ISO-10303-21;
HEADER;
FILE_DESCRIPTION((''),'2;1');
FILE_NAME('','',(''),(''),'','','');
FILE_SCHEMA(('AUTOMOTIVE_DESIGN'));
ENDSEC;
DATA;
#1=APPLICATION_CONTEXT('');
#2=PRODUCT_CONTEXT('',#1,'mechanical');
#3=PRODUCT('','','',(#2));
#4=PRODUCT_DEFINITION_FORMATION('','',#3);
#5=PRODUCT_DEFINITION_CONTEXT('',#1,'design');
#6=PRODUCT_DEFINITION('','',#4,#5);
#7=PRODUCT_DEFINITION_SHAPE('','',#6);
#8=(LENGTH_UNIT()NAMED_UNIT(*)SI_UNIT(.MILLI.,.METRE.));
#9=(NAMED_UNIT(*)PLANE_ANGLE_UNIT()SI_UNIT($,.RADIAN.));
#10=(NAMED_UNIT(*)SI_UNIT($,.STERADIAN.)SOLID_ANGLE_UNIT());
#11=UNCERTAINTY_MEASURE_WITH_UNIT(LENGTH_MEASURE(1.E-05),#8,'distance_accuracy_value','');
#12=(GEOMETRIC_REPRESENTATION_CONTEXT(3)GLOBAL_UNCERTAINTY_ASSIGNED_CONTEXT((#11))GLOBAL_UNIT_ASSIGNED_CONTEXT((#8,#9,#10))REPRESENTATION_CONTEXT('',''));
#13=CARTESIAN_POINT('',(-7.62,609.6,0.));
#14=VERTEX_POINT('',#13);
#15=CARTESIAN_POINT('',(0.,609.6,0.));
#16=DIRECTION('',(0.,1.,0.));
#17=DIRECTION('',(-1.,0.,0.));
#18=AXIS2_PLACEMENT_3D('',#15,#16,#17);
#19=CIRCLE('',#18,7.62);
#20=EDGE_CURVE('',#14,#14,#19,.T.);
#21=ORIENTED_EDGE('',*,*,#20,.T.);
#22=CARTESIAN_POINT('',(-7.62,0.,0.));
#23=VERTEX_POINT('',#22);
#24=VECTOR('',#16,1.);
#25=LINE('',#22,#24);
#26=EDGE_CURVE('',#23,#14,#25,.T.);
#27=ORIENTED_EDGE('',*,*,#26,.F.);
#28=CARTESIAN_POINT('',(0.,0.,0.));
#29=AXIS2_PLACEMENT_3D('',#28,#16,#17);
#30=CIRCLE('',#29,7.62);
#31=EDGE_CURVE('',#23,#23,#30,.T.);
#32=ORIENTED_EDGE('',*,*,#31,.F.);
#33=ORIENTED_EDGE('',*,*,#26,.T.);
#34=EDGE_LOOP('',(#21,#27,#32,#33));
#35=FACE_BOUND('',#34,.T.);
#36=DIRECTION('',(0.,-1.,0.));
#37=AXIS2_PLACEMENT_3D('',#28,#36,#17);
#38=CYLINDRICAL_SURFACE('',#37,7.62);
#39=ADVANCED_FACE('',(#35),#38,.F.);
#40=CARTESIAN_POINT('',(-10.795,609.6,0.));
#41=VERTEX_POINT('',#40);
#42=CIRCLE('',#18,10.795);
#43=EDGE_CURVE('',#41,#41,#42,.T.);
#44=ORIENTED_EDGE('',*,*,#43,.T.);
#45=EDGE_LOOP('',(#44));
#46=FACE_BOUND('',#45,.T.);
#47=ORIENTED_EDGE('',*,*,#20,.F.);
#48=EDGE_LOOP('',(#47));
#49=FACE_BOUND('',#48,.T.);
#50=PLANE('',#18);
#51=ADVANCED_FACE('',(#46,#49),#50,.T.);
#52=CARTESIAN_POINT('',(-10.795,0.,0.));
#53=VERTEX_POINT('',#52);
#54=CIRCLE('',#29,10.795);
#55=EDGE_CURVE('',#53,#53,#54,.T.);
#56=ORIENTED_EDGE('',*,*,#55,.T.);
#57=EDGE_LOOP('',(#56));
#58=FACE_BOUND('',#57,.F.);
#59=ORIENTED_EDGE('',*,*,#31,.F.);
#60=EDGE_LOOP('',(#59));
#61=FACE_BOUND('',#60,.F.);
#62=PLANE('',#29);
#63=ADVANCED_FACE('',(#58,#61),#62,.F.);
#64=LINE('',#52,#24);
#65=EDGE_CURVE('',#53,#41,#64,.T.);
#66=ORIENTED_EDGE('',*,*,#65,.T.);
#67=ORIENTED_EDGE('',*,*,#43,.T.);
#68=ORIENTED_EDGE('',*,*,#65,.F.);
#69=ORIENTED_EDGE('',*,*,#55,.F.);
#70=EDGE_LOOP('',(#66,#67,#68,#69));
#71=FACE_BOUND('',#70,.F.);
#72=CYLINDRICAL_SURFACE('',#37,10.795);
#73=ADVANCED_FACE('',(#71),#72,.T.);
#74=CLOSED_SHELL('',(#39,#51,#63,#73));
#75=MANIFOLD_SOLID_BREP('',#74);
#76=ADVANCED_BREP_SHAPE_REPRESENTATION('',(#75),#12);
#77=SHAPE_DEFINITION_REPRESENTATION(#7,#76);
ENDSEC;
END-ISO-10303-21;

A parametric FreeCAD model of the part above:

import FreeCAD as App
import Part
import Sketcher
from FreeCAD import Vector
Q = App.Units.Quantity

doc = App.newDocument("Part")
params = doc.addObject("Spreadsheet::Sheet", "Params")
for row, (alias, value) in enumerate([
    ("sketch1_diameter", "0.6 in"),
    ("sketch1_diameter2", "0.85 in"),
    ("pad1_length", "24 in"),
], start=1):
    params.set(f"A{row}", alias)
    params.set(f"B{row}", "=" + value)
    params.setAlias(f"B{row}", alias)

body = doc.addObject("PartDesign::Body", "Body")

# Sketch on XZ plane
sketch1 = doc.addObject("Sketcher::SketchObject", "Sketch")
body.addObject(sketch1)
sketch1.AttachmentSupport = (doc.XZ_Plane, [""])
sketch1.MapMode = "FlatFace"
sketch1.addGeometry([
    Part.Circle(Vector(0, 0, 0), Vector(0, 0, 1), 11),
    Part.Circle(Vector(0, 0, 0), Vector(0, 0, 1), 8),
], False)
sketch1.addConstraint([
    Sketcher.Constraint("Coincident", 0, 3, -1, 1),
    Sketcher.Constraint("Coincident", 1, 3, -1, 1),
    Sketcher.Constraint("Diameter", 1, Q("0.6 in")),
    Sketcher.Constraint("Diameter", 0, Q("0.85 in")),
])
sketch1.setExpression("Constraints[2]", "Params.sketch1_diameter")
sketch1.setExpression("Constraints[3]", "Params.sketch1_diameter2")
pad1 = doc.addObject("PartDesign::Pad", "Pad")
body.addObject(pad1)
pad1.Profile = sketch1
pad1.setExpression("Length", "Params.pad1_length")
pad1.Reversed = True

doc.recompute()
